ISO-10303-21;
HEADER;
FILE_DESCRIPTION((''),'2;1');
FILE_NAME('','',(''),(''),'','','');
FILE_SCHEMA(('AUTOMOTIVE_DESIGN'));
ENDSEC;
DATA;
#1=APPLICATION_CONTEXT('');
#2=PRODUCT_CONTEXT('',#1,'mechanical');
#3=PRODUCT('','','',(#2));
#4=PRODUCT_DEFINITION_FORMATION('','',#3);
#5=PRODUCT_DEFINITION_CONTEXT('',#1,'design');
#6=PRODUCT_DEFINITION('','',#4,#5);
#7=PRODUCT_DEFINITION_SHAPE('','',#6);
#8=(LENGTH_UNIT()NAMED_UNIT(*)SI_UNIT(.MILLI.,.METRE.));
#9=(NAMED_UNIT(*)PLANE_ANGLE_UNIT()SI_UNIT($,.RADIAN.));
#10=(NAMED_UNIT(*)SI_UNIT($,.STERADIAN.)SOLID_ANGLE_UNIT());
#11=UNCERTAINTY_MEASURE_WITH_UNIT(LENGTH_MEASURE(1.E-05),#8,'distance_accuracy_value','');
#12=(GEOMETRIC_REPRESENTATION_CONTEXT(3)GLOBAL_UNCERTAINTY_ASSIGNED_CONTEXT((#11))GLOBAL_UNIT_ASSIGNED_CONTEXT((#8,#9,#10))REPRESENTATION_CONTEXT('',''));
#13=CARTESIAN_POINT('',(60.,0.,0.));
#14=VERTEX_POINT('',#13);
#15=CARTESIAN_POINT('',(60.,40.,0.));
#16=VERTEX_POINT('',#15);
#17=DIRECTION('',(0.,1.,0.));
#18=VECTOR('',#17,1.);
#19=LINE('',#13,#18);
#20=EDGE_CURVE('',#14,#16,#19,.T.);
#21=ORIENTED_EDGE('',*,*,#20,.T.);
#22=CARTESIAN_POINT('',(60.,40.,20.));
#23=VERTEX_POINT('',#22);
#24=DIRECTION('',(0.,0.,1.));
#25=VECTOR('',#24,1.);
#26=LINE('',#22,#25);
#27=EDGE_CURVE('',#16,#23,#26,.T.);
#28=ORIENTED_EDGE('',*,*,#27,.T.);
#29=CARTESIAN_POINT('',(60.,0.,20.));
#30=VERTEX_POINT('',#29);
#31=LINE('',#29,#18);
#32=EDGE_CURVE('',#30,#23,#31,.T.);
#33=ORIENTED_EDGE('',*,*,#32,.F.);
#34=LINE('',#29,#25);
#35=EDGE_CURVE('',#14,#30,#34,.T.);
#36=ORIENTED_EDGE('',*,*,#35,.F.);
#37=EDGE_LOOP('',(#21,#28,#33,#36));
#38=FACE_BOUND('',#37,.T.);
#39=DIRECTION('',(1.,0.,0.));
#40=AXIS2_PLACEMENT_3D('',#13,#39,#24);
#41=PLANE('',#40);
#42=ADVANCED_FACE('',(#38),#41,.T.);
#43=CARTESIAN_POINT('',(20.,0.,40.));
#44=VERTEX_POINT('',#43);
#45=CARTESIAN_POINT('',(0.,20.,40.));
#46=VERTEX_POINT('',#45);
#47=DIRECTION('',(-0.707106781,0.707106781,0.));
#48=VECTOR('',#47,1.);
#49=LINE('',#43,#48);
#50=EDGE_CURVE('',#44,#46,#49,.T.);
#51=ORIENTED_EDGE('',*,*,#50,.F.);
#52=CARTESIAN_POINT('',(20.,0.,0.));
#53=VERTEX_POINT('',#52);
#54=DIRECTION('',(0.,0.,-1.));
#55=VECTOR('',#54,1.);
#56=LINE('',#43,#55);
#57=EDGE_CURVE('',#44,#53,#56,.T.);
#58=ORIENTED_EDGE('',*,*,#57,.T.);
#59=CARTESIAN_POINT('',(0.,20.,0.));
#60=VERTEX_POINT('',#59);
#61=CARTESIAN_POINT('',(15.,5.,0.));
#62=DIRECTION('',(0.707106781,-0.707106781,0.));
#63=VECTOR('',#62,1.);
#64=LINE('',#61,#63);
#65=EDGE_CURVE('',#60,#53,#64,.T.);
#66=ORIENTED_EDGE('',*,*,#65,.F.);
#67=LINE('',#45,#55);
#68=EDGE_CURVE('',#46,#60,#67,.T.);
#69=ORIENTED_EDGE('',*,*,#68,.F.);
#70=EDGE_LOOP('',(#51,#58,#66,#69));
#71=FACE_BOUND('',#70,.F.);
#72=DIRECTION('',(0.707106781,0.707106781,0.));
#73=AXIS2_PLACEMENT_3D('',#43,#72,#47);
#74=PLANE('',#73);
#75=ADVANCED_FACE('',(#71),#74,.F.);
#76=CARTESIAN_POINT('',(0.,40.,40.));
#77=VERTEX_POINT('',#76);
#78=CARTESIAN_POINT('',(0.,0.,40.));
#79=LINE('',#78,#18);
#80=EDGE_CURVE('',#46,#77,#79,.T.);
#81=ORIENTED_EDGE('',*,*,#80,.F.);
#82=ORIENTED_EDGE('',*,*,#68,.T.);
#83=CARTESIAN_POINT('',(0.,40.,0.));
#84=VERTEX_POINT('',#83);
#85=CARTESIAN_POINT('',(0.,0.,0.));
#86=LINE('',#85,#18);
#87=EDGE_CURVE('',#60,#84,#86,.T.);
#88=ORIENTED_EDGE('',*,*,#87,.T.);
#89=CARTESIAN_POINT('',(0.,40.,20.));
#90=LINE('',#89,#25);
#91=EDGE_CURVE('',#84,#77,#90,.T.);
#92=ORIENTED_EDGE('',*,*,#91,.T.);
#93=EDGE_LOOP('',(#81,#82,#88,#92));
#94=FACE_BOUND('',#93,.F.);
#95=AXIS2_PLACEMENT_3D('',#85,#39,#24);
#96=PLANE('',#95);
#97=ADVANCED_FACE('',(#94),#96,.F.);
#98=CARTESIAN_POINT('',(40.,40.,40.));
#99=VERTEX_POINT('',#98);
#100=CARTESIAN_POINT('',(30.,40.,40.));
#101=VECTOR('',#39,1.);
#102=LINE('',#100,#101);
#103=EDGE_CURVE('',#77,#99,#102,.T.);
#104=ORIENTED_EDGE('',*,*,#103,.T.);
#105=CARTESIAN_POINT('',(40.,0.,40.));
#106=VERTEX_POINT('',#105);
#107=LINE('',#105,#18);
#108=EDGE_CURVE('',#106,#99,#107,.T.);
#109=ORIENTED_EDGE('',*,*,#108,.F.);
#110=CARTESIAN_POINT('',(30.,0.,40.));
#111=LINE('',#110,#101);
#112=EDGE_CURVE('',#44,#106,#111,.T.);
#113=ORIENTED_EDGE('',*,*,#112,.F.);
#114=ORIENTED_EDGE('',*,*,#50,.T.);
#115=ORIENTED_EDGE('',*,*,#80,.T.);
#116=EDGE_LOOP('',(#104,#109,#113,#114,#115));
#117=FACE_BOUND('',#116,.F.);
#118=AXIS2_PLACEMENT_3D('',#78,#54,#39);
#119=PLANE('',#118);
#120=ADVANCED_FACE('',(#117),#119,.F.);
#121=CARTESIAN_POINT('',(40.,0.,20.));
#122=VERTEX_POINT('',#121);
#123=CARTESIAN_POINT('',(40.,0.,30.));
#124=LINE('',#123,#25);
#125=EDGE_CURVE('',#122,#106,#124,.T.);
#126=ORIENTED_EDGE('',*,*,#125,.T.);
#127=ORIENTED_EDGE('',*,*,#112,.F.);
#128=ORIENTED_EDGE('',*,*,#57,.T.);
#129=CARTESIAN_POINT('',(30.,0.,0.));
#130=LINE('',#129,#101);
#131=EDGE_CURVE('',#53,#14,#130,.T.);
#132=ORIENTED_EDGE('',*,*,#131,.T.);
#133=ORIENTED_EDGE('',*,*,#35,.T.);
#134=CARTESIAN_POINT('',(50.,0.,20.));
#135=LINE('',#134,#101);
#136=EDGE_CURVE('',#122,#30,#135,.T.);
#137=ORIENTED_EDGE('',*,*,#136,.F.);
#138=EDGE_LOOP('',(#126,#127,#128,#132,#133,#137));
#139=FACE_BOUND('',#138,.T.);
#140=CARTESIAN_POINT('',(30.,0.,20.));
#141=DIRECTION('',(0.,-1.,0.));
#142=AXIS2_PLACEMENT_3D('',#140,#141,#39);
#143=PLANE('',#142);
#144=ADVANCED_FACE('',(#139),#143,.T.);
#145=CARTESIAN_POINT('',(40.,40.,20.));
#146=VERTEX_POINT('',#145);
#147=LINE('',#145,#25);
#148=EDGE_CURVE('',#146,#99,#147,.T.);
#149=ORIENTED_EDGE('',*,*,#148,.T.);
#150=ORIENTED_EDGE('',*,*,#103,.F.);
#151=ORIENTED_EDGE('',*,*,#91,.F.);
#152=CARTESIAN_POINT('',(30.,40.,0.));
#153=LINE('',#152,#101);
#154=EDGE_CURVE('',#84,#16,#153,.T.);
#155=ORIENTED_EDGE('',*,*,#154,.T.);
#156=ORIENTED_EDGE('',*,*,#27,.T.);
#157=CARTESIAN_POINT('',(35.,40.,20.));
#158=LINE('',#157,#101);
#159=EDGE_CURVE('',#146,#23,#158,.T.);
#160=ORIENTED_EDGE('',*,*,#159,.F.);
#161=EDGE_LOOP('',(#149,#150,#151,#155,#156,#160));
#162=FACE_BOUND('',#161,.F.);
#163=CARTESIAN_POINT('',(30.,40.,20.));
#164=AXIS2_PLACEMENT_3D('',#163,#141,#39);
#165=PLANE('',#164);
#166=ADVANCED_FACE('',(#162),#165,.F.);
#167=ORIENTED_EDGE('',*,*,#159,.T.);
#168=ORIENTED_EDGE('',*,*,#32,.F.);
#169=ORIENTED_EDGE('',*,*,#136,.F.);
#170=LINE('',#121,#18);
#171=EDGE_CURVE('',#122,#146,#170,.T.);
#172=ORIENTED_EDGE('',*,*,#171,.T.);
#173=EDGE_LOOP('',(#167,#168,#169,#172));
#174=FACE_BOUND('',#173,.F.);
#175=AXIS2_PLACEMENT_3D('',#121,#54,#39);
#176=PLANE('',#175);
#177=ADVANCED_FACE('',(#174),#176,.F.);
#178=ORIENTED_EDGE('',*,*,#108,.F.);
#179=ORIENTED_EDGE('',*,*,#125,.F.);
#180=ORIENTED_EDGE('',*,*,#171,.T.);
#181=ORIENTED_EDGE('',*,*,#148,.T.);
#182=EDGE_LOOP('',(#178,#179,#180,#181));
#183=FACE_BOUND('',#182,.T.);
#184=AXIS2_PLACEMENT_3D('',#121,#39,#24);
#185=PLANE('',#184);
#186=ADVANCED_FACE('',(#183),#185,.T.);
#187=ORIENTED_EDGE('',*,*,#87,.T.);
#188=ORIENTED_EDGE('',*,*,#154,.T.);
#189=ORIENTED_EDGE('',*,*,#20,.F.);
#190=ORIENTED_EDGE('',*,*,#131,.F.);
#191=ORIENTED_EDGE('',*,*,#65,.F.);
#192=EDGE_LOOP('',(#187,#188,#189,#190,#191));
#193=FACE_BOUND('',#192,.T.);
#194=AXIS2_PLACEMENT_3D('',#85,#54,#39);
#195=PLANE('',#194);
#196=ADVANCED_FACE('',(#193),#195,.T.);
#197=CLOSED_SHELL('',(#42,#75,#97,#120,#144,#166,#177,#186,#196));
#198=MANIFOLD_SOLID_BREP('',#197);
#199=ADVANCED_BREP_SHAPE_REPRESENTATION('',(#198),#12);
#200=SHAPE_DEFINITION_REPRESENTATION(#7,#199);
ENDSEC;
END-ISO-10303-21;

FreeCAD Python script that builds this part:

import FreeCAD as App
import Part
import Sketcher

doc = App.newDocument("Part")
body = doc.addObject("PartDesign::Body", "Body")

sketch1 = body.newObject("Sketcher::SketchObject", "Sketch")
sketch1.AttachmentSupport = (doc.getObject("XZ_Plane"), [""])
sketch1.MapMode = "FlatFace"
sketch1.addGeometry([
    Part.LineSegment(App.Vector(0, 40, 0), App.Vector(0, 0, 0)),
    Part.LineSegment(App.Vector(0, 0, 0), App.Vector(60, 0, 0)),
    Part.LineSegment(App.Vector(60, 0, 0), App.Vector(60, 40, 0)),
    Part.LineSegment(App.Vector(60, 40, 0), App.Vector(0, 40, 0)),
], False)
sketch1.addConstraint([
    Sketcher.Constraint("Coincident", 0, 2, 1, 1),
    Sketcher.Constraint("Coincident", 1, 2, 2, 1),
    Sketcher.Constraint("Coincident", 2, 2, 3, 1),
    Sketcher.Constraint("Coincident", 3, 2, 0, 1),
    Sketcher.Constraint("Vertical", 0),
    Sketcher.Constraint("Horizontal", 1),
    Sketcher.Constraint("Vertical", 2),
    Sketcher.Constraint("Horizontal", 3),
    Sketcher.Constraint("Coincident", 0, 2, -1, 1),
    Sketcher.Constraint("DistanceX", 1, 1, 1, 2, 60.0),
    Sketcher.Constraint("DistanceY", 0, 2, 0, 1, 40.0),
])
pad1 = body.newObject("PartDesign::Pad", "Pad")
pad1.Profile = sketch1
pad1.Length = 40
pad1.Reversed = True

sketch2 = body.newObject("Sketcher::SketchObject", "Sketch001")
sketch2.AttachmentSupport = (doc.getObject("XZ_Plane"), [""])
sketch2.MapMode = "FlatFace"
sketch2.addGeometry([
    Part.LineSegment(App.Vector(40, 40, 0), App.Vector(40, 20, 0)),
    Part.LineSegment(App.Vector(40, 20, 0), App.Vector(60, 20, 0)),
    Part.LineSegment(App.Vector(60, 20, 0), App.Vector(60, 40, 0)),
    Part.LineSegment(App.Vector(60, 40, 0), App.Vector(40, 40, 0)),
], False)
sketch2.addConstraint([
    Sketcher.Constraint("Coincident", 0, 2, 1, 1),
    Sketcher.Constraint("Coincident", 1, 2, 2, 1),
    Sketcher.Constraint("Coincident", 2, 2, 3, 1),
    Sketcher.Constraint("Coincident", 3, 2, 0, 1),
    Sketcher.Constraint("Vertical", 0),
    Sketcher.Constraint("Horizontal", 1),
    Sketcher.Constraint("Vertical", 2),
    Sketcher.Constraint("Horizontal", 3),
    Sketcher.Constraint("Equal", 3, 0),
    Sketcher.Constraint("DistanceX", 1, 1, 1, 2, 20.0),
    Sketcher.Constraint("DistanceX", -1, 1, 0, 2, 40.0),
    Sketcher.Constraint("DistanceY", -1, 1, 0, 2, 20.0),
])
pocket1 = body.newObject("PartDesign::Pocket", "Pocket")
pocket1.Profile = sketch2
pocket1.Type = "ThroughAll"

sketch3 = body.newObject("Sketcher::SketchObject", "Sketch002")
sketch3.AttachmentSupport = (doc.getObject("XY_Plane"), [""])
sketch3.MapMode = "FlatFace"
sketch3.AttachmentOffset = App.Placement(App.Vector(0, 0, 40), App.Rotation())
sketch3.addGeometry([
    Part.LineSegment(App.Vector(20, 0, 0), App.Vector(0, 20, 0)),
    Part.LineSegment(App.Vector(0, 20, 0), App.Vector(0, 0, 0)),
    Part.LineSegment(App.Vector(0, 0, 0), App.Vector(20, 0, 0)),
], False)
sketch3.addConstraint([
    Sketcher.Constraint("Coincident", 0, 2, 1, 1),
    Sketcher.Constraint("Coincident", 1, 2, 2, 1),
    Sketcher.Constraint("Coincident", 2, 2, 0, 1),
    Sketcher.Constraint("Vertical", 1),
    Sketcher.Constraint("Horizontal", 2),
    Sketcher.Constraint("Coincident", 1, 2, -1, 1),
    Sketcher.Constraint("Equal", 2, 1),
    Sketcher.Constraint("DistanceX", 2, 1, 2, 2, 20.0),
])
pocket2 = body.newObject("PartDesign::Pocket", "Pocket001")
pocket2.Profile = sketch3
pocket2.Type = "ThroughAll"

doc.recompute()
